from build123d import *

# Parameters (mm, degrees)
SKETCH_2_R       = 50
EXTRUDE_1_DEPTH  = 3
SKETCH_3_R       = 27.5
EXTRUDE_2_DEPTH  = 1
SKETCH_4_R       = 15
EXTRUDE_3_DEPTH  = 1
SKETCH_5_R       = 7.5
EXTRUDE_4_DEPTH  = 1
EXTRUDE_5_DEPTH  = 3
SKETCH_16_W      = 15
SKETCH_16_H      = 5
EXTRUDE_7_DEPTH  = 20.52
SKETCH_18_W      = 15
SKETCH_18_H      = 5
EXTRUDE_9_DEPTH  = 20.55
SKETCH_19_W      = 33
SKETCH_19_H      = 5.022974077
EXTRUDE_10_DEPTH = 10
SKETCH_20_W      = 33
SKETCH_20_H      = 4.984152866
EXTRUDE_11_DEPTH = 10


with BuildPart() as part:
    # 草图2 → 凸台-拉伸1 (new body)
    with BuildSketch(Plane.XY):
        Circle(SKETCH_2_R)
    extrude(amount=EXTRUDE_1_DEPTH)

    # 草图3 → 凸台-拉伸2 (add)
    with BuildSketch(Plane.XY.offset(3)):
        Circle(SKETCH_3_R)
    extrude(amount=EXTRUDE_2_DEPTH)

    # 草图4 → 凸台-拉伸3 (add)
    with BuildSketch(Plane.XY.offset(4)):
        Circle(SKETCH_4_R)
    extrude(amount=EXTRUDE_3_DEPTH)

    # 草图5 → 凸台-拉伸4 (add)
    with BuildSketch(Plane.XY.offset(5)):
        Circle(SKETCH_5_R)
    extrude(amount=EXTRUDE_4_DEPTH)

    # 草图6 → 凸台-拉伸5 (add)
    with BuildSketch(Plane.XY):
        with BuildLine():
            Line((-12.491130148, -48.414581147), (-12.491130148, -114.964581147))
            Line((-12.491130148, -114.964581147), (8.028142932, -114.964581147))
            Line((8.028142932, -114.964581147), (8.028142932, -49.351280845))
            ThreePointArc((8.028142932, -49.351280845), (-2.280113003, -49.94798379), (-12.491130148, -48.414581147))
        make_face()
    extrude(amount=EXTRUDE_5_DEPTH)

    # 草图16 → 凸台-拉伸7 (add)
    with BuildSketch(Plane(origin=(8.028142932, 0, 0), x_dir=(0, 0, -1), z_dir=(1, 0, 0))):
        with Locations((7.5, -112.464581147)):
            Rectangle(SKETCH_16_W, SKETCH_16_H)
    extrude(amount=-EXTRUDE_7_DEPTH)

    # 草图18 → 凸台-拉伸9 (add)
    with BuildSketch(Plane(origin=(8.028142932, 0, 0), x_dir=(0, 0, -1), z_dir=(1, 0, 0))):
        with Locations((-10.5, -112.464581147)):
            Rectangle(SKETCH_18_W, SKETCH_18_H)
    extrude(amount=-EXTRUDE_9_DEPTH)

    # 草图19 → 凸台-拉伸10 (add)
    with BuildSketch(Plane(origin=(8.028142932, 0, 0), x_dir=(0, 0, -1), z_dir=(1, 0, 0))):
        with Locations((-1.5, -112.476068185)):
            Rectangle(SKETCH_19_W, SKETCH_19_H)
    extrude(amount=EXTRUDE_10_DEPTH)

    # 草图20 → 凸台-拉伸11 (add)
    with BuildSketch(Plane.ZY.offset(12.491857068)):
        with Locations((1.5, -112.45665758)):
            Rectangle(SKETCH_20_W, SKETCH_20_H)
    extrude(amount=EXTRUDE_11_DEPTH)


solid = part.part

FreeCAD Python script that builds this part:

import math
import FreeCAD as App
import Part
import Sketcher
from FreeCAD import Vector


def add_polygon(sketch, points):
    """Adds a closed chain of lines whose ends are joined by coincident constraints."""
    first, n = sketch.GeometryCount, len(points)
    for a, b in zip(points, points[1:] + points[:1]):
        sketch.addGeometry(Part.LineSegment(App.Vector(*a, 0), App.Vector(*b, 0)), False)
    for i in range(n):
        sketch.addConstraint(Sketcher.Constraint("Coincident", first + i, 2, first + (i + 1) % n, 1))

doc = App.newDocument("Part")
body = doc.addObject("PartDesign::Body", "Body")

sketch1 = body.newObject("Sketcher::SketchObject", "Sketch")
sketch1.AttachmentSupport = (doc.getObject("XY_Plane"), [""])
sketch1.MapMode = "FlatFace"
sketch1.addGeometry(Part.Circle(Vector(0, 0, 0), Vector(0, 0, 1), 50), False)
sketch1.addConstraint([
    Sketcher.Constraint("Coincident", 0, 3, -1, 1),
    Sketcher.Constraint("Diameter", 0, 100.0),
])
pad1 = body.newObject("PartDesign::Pad", "Pad")
pad1.Profile = sketch1
pad1.Length = 3

sketch2 = body.newObject("Sketcher::SketchObject", "Sketch001")
sketch2.AttachmentSupport = (doc.getObject("XY_Plane"), [""])
sketch2.MapMode = "FlatFace"
sketch2.AttachmentOffset = App.Placement(Vector(0, 0, 3), App.Rotation())
sketch2.addGeometry(Part.Circle(Vector(0, 0, 0), Vector(0, 0, 1), 28), False)
sketch2.addConstraint([
    Sketcher.Constraint("Coincident", 0, 3, -1, 1),
    Sketcher.Constraint("Diameter", 0, 55.0),
])
pad2 = body.newObject("PartDesign::Pad", "Pad001")
pad2.Profile = sketch2
pad2.Length = 1

sketch3 = body.newObject("Sketcher::SketchObject", "Sketch002")
sketch3.AttachmentSupport = (doc.getObject("XY_Plane"), [""])
sketch3.MapMode = "FlatFace"
sketch3.AttachmentOffset = App.Placement(Vector(0, 0, 4), App.Rotation())
sketch3.addGeometry(Part.Circle(Vector(0, 0, 0), Vector(0, 0, 1), 15), False)
sketch3.addConstraint([
    Sketcher.Constraint("Coincident", 0, 3, -1, 1),
    Sketcher.Constraint("Diameter", 0, 30.0),
])
pad3 = body.newObject("PartDesign::Pad", "Pad002")
pad3.Profile = sketch3
pad3.Length = 1

sketch4 = body.newObject("Sketcher::SketchObject", "Sketch003")
sketch4.AttachmentSupport = (doc.getObject("XY_Plane"), [""])
sketch4.MapMode = "FlatFace"
sketch4.AttachmentOffset = App.Placement(Vector(0, 0, 5), App.Rotation())
sketch4.addGeometry(Part.Circle(Vector(0, 0, 0), Vector(0, 0, 1), 8), False)
sketch4.addConstraint([
    Sketcher.Constraint("Coincident", 0, 3, -1, 1),
    Sketcher.Constraint("Diameter", 0, 15.0),
])
pad4 = body.newObject("PartDesign::Pad", "Pad003")
pad4.Profile = sketch4
pad4.Length = 1

sketch5 = body.newObject("Sketcher::SketchObject", "Sketch004")
sketch5.AttachmentSupport = (doc.getObject("XY_Plane"), [""])
sketch5.MapMode = "FlatFace"
sketch5.addGeometry([
    Part.LineSegment(Vector(-12, -48, 0), Vector(-12, -115, 0)),
    Part.LineSegment(Vector(-12, -115, 0), Vector(8, -115, 0)),
    Part.LineSegment(Vector(8, -115, 0), Vector(8, -49, 0)),
    Part.ArcOfCircle(Part.Circle(Vector(0, 0, 0), Vector(0, 0, 1), 50), math.radians(-104), math.radians(-81)),
], False)
sketch5.addConstraint([
    Sketcher.Constraint("Coincident", 0, 2, 1, 1),
    Sketcher.Constraint("Coincident", 1, 2, 2, 1),
    Sketcher.Constraint("Coincident", 2, 2, 3, 2),
    Sketcher.Constraint("Coincident", 3, 1, 0, 1),
    Sketcher.Constraint("Vertical", 0),
    Sketcher.Constraint("Horizontal", 1),
    Sketcher.Constraint("Vertical", 2),
    Sketcher.Constraint("Coincident", 3, 3, -1, 1),
    Sketcher.Constraint("Radius", 3, 50.0),
    Sketcher.Constraint("DistanceY", 0, 2, 0, 1, 66.55),
    Sketcher.Constraint("DistanceY", 2, 1, 2, 2, 65.6133),
    Sketcher.Constraint("DistanceX", 1, 1, 1, 2, 20.519273),
])
pad5 = body.newObject("PartDesign::Pad", "Pad004")
pad5.Profile = sketch5
pad5.Length = 3

sketch6 = body.newObject("Sketcher::SketchObject", "Sketch005")
sketch6.AttachmentSupport = (doc.getObject("YZ_Plane"), [""])
sketch6.MapMode = "FlatFace"
sketch6.AttachmentOffset = App.Placement(Vector(0, 0, 8.028143), App.Rotation())
add_polygon(sketch6, [(-110, 0), (-115, 0), (-115, -15), (-110, -15)])
sketch6.addConstraint([
    Sketcher.Constraint("Horizontal", 0),
    Sketcher.Constraint("Vertical", 1),
    Sketcher.Constraint("Horizontal", 2),
    Sketcher.Constraint("Vertical", 3),
    Sketcher.Constraint("PointOnObject", 0, 2, -1),
    Sketcher.Constraint("DistanceX", 0, 2, 0, 1, 5.0),
    Sketcher.Constraint("DistanceY", 1, 2, 1, 1, 15.0),
    Sketcher.Constraint("DistanceX", 0, 2, -1, 1, 114.964581),
])
pad6 = body.newObject("PartDesign::Pad", "Pad005")
pad6.Profile = sketch6
pad6.Length = 20.52
pad6.Reversed = True

sketch7 = body.newObject("Sketcher::SketchObject", "Sketch006")
sketch7.AttachmentSupport = (doc.getObject("YZ_Plane"), [""])
sketch7.MapMode = "FlatFace"
sketch7.AttachmentOffset = App.Placement(Vector(0, 0, 8.028143), App.Rotation())
add_polygon(sketch7, [(-110, 18), (-115, 18), (-115, 3), (-110, 3)])
sketch7.addConstraint([
    Sketcher.Constraint("Horizontal", 0),
    Sketcher.Constraint("Vertical", 1),
    Sketcher.Constraint("Horizontal", 2),
    Sketcher.Constraint("Vertical", 3),
    Sketcher.Constraint("DistanceX", 0, 2, 0, 1, 5.0),
    Sketcher.Constraint("DistanceY", 1, 2, 1, 1, 15.0),
    Sketcher.Constraint("DistanceY", -1, 1, 0, 2, 18.0),
    Sketcher.Constraint("DistanceX", 0, 2, -1, 1, 114.964581),
])
pad7 = body.newObject("PartDesign::Pad", "Pad006")
pad7.Profile = sketch7
pad7.Length = 20.55
pad7.Reversed = True

sketch8 = body.newObject("Sketcher::SketchObject", "Sketch007")
sketch8.AttachmentSupport = (doc.getObject("YZ_Plane"), [""])
sketch8.MapMode = "FlatFace"
sketch8.AttachmentOffset = App.Placement(Vector(0, 0, 8.028143), App.Rotation())
add_polygon(sketch8, [(-110, 18), (-115, 18), (-115, -15), (-110, -15)])
sketch8.addConstraint([
    Sketcher.Constraint("Horizontal", 0),
    Sketcher.Constraint("Vertical", 1),
    Sketcher.Constraint("Horizontal", 2),
    Sketcher.Constraint("Vertical", 3),
    Sketcher.Constraint("DistanceY", 1, 2, 1, 1, 33.0),
    Sketcher.Constraint("DistanceY", -1, 1, 0, 2, 18.0),
    Sketcher.Constraint("DistanceX", 0, 2, 0, 1, 5.022974),
    Sketcher.Constraint("DistanceX", 2, 2, -1, 1, 109.964581),
])
pad8 = body.newObject("PartDesign::Pad", "Pad007")
pad8.Profile = sketch8
pad8.Length = 10

sketch9 = body.newObject("Sketcher::SketchObject", "Sketch008")
sketch9.AttachmentSupport = (doc.getObject("YZ_Plane"), [""])
sketch9.MapMode = "FlatFace"
sketch9.AttachmentOffset = App.Placement(Vector(0, 0, -12.491857), App.Rotation())
add_polygon(sketch9, [(-110, -15), (-114.9, -15), (-114.9, 18), (-110, 18)])
sketch9.addConstraint([
    Sketcher.Constraint("Horizontal", 0),
    Sketcher.Constraint("Vertical", 1),
    Sketcher.Constraint("Horizontal", 2),
    Sketcher.Constraint("Vertical", 3),
    Sketcher.Constraint("DistanceY", 1, 1, 1, 2, 33.0),
    Sketcher.Constraint("DistanceY", 0, 2, -1, 1, 15.0),
    Sketcher.Constraint("DistanceX", 0, 2, 0, 1, 4.984153),
    Sketcher.Constraint("DistanceX", 2, 2, -1, 1, 109.964581),
])
pad9 = body.newObject("PartDesign::Pad", "Pad008")
pad9.Profile = sketch9
pad9.Length = 10
pad9.Reversed = True

doc.recompute()
